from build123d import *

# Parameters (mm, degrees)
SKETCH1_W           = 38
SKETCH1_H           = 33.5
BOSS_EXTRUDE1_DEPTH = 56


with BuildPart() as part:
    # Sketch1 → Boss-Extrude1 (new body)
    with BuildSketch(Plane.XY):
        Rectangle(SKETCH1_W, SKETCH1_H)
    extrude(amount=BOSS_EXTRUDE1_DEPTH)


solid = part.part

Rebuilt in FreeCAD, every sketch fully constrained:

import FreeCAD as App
import Part
import Sketcher

V = App.Vector


def add_polygon(sketch, points):
    """Adds a closed chain of lines whose ends are joined by coincident constraints."""
    first, n = sketch.GeometryCount, len(points)
    for a, b in zip(points, points[1:] + points[:1]):
        sketch.addGeometry(Part.LineSegment(App.Vector(*a, 0), App.Vector(*b, 0)), False)
    for i in range(n):
        sketch.addConstraint(Sketcher.Constraint("Coincident", first + i, 2, first + (i + 1) % n, 1))

doc = App.newDocument("Part")
body = doc.addObject("PartDesign::Body", "Body")

sketch1 = body.newObject("Sketcher::SketchObject", "Sketch")
sketch1.AttachmentSupport = (doc.getObject("XY_Plane"), [""])
sketch1.MapMode = "FlatFace"
add_polygon(sketch1, [(-19, 16.75), (-19, -16.75), (19, -16.75), (19, 16.75)])
sketch1.addConstraint(Sketcher.Constraint("Vertical", 0))
sketch1.addConstraint(Sketcher.Constraint("Horizontal", 1))
sketch1.addConstraint(Sketcher.Constraint("Vertical", 2))
sketch1.addConstraint(Sketcher.Constraint("Horizontal", 3))
sketch1.addConstraint(Sketcher.Constraint("Symmetric", 0, 2, 2, 2, -1, 1))
sketch1.addConstraint(Sketcher.Constraint("DistanceX", 1, 1, 1, 2, 38.0))
sketch1.addConstraint(Sketcher.Constraint("DistanceY", 0, 2, 0, 1, 33.5))
pad1 = body.newObject("PartDesign::Pad", "Pad")
pad1.Profile = sketch1
pad1.Length = 56

doc.recompute()
